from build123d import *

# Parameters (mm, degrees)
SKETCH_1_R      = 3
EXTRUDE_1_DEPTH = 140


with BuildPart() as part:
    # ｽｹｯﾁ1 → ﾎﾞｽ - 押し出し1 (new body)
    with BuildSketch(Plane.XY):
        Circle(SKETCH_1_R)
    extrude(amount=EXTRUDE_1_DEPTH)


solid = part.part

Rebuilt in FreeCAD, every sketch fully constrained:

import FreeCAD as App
import Part
import Sketcher

V = App.Vector

doc = App.newDocument("Part")
body = doc.addObject("PartDesign::Body", "Body")

sketch1 = body.newObject("Sketcher::SketchObject", "Sketch")
sketch1.AttachmentSupport = (doc.getObject("XY_Plane"), [""])
sketch1.MapMode = "FlatFace"
sketch1.addGeometry(Part.Circle(V(0, 0, 0), V(0, 0, 1), 3), False)
sketch1.addConstraint([
    Sketcher.Constraint("Coincident", 0, 3, -1, 1),
    Sketcher.Constraint("Diameter", 0, 6.0),
])
pad1 = body.newObject("PartDesign::Pad", "Pad")
pad1.Profile = sketch1
pad1.Length = 140

doc.recompute()
